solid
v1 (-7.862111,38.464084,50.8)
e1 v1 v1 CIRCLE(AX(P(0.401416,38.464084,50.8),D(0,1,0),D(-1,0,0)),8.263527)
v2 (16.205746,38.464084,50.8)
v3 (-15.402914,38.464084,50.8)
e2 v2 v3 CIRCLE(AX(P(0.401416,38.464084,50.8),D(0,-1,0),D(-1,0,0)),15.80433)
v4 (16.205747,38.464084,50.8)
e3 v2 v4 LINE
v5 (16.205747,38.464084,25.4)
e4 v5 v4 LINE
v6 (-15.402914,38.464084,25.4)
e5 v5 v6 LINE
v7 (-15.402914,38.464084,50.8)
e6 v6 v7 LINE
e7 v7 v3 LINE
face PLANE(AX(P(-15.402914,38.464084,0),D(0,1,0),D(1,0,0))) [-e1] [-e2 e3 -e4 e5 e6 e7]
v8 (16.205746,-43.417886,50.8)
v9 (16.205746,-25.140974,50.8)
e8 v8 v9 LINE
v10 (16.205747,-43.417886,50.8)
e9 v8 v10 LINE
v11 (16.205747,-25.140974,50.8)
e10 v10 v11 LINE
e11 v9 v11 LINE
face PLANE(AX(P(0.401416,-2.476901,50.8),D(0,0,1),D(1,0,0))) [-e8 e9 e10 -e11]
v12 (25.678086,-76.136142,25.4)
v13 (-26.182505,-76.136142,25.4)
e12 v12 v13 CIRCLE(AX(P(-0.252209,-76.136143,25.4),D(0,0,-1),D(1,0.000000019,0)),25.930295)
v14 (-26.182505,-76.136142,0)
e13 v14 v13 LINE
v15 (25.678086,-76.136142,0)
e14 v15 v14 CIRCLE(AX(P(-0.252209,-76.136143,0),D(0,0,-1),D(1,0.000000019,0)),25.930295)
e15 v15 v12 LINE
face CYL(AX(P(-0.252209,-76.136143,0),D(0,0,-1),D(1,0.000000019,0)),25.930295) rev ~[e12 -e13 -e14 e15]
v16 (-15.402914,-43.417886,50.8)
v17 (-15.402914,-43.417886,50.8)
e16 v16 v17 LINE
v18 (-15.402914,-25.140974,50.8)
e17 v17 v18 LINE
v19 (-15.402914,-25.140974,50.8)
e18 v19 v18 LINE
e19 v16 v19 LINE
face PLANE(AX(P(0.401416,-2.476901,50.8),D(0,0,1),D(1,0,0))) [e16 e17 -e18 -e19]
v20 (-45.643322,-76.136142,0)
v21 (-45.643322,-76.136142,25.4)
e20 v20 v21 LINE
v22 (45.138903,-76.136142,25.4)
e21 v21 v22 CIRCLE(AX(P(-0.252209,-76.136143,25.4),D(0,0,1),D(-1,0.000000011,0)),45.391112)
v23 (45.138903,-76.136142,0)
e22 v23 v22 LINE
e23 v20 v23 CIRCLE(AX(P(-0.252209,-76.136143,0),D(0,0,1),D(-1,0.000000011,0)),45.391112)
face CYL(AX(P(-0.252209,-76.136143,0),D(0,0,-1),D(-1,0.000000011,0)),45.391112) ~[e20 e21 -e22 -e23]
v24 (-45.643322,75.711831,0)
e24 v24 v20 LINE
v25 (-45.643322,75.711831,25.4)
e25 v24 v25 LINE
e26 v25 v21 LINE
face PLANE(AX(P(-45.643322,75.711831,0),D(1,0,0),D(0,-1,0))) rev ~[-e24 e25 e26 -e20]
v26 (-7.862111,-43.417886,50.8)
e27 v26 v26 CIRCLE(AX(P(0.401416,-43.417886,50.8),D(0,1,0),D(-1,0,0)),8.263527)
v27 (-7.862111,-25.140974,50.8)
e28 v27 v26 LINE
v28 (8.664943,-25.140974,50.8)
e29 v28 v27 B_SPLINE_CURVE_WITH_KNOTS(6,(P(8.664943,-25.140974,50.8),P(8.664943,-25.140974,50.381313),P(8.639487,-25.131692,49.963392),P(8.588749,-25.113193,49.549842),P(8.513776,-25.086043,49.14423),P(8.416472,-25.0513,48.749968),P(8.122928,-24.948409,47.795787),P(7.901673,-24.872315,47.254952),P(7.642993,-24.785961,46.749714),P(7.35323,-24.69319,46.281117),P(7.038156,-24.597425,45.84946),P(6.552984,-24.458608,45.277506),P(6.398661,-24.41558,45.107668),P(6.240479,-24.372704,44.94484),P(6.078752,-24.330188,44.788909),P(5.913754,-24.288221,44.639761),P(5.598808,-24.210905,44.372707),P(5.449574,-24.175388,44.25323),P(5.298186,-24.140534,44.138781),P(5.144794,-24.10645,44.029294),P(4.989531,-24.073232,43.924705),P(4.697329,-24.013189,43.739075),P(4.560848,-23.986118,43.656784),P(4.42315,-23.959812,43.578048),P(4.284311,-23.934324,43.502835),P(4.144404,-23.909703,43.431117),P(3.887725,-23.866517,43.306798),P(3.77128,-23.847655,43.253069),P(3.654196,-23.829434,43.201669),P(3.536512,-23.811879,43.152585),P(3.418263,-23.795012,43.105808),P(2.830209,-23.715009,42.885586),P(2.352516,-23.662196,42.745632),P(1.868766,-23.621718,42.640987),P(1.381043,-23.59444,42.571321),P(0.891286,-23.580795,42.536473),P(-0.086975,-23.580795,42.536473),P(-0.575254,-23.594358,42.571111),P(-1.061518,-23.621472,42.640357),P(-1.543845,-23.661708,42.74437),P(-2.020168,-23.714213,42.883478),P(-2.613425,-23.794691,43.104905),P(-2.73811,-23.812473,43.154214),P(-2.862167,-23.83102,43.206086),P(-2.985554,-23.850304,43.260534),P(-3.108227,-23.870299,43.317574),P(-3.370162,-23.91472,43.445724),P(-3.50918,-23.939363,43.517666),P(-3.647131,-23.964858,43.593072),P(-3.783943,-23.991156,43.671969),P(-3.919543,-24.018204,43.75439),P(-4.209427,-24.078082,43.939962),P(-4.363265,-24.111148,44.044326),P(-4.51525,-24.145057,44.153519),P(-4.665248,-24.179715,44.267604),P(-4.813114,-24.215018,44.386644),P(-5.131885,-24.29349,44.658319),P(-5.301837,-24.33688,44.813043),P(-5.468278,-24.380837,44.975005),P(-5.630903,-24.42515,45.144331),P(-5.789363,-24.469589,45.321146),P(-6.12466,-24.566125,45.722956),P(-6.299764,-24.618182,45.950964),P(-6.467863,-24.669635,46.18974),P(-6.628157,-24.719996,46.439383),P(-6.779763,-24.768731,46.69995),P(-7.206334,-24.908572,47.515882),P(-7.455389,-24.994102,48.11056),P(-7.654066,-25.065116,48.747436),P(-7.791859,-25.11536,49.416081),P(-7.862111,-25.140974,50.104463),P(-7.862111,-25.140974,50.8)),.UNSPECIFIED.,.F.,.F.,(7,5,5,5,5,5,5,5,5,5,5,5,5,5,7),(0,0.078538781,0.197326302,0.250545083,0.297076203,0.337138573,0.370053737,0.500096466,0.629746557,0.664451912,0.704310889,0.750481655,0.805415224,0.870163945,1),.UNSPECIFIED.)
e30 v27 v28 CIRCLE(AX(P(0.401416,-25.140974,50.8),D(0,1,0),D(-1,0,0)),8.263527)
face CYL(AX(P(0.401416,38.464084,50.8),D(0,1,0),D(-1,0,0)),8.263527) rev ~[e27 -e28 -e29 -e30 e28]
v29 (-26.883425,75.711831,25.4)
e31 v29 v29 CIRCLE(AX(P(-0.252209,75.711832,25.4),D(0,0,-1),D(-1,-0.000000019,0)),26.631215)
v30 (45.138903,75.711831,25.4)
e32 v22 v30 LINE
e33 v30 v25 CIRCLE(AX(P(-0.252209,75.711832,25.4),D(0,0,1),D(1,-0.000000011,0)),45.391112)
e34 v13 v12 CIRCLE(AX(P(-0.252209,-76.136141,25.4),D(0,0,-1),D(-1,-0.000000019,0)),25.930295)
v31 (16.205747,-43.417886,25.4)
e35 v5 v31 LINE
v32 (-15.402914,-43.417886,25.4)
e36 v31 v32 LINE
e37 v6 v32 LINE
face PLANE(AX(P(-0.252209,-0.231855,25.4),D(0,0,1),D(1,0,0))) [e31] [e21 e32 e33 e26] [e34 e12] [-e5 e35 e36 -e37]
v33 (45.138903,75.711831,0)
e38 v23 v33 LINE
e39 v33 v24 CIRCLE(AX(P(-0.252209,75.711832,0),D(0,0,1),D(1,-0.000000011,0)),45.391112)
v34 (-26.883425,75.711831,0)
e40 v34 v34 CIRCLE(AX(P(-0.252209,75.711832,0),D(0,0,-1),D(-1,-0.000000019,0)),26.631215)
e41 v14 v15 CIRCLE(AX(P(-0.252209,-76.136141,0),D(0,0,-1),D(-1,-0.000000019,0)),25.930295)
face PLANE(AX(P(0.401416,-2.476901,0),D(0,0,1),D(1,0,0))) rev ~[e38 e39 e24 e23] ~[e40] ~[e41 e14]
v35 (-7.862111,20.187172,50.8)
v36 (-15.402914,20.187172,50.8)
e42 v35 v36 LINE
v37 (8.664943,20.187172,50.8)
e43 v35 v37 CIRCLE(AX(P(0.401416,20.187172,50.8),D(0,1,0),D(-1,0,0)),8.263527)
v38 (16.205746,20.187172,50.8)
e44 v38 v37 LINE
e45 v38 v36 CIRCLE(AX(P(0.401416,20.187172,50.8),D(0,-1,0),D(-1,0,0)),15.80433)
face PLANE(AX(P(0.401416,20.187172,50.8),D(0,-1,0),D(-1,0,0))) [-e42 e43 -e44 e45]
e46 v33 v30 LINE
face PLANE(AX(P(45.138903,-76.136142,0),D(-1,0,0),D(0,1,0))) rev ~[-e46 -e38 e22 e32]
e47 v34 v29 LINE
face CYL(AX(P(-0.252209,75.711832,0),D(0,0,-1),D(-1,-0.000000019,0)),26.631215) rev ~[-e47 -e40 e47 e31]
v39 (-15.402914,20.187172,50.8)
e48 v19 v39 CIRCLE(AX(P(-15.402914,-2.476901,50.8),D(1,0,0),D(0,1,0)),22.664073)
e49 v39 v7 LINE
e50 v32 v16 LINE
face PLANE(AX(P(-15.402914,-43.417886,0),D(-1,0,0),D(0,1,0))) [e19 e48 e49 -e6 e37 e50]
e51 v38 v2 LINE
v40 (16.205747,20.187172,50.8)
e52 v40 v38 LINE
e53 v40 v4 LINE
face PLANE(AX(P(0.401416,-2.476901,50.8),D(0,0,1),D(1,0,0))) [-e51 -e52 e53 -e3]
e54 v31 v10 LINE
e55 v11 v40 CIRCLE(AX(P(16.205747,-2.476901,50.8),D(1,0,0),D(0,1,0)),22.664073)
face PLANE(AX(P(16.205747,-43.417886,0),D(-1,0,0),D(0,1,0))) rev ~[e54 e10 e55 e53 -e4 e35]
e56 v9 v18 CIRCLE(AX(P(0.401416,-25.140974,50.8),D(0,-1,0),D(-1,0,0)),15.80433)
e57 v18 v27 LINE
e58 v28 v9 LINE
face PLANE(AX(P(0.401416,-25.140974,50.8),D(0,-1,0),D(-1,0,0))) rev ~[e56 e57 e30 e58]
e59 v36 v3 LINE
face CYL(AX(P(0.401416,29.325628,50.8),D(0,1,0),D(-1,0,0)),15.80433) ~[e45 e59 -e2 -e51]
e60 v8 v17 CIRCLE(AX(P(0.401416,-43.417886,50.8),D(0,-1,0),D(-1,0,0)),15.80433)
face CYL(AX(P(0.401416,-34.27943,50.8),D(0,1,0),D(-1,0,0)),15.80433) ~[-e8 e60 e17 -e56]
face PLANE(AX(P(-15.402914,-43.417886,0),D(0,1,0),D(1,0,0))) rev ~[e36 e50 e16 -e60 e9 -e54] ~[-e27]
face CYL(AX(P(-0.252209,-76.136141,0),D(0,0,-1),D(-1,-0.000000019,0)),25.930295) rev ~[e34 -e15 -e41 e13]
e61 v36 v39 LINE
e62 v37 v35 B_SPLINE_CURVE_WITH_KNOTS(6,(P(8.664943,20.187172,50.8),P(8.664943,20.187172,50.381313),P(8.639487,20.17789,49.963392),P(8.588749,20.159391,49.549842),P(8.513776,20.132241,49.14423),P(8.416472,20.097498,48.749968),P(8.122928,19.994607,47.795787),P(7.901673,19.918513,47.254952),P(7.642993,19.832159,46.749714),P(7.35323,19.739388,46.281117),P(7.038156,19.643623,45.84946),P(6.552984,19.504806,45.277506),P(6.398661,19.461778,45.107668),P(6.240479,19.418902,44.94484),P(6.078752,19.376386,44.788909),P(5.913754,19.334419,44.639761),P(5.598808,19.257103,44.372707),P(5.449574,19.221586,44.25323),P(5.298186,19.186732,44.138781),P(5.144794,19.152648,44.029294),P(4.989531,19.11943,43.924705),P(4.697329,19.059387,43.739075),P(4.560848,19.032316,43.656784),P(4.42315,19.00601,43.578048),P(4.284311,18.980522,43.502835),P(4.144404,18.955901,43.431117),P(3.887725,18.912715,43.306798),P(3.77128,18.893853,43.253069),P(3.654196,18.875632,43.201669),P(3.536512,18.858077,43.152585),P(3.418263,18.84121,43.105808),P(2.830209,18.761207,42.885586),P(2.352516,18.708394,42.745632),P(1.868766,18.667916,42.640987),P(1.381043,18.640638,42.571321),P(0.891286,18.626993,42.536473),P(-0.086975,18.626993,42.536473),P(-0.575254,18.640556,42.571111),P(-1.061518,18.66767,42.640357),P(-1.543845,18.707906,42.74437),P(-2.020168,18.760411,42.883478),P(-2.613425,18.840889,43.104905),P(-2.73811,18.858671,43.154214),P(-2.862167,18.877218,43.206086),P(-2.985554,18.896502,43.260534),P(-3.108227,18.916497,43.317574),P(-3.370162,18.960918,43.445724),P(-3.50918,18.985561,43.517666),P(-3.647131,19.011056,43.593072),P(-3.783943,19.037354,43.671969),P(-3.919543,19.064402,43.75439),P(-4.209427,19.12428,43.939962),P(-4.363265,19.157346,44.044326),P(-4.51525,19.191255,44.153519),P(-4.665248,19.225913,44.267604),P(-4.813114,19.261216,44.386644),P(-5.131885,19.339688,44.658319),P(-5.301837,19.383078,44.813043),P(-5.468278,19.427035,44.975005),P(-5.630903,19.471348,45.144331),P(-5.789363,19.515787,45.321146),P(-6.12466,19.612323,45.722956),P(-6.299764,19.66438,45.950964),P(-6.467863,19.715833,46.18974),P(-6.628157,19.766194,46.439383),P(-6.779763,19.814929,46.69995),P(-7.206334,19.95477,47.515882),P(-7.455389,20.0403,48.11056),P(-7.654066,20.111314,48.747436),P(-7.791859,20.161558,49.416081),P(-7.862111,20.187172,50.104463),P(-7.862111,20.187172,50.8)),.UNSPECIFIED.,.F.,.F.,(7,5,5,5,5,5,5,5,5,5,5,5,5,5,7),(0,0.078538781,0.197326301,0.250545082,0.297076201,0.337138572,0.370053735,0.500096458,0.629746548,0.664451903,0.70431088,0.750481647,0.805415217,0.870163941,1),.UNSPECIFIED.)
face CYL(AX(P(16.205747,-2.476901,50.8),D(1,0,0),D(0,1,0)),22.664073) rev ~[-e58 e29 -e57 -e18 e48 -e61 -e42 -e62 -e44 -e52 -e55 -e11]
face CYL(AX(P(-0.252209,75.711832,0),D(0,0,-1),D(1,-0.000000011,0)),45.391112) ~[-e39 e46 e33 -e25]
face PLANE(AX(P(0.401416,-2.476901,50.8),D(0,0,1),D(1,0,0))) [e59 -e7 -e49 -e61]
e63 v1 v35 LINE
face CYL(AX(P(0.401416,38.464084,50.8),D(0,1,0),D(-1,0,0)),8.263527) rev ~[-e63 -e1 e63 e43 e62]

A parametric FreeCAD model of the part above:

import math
import FreeCAD as App
import Part
import Sketcher
Q = App.Units.Quantity

doc = App.newDocument("Part")
params = doc.addObject("Spreadsheet::Sheet", "Params")
for row, (alias, value) in enumerate([
    ("pad1_length", "1 in"),
    ("pad2_length", "2 in"),
    ("pocket1_length", "3 in"),
    ("revolution_angle", "360 deg"),
    ("revolution2_angle", "360 deg"),
    ("pocket2_length", "5.34 in"),
], start=1):
    params.set(f"A{row}", alias)
    params.set(f"B{row}", "=" + value)
    params.setAlias(f"B{row}", alias)

body = doc.addObject("PartDesign::Body", "Body")

# Sketch on XY plane
sketch1 = doc.addObject("Sketcher::SketchObject", "Sketch")
body.addObject(sketch1)
sketch1.AttachmentSupport = (doc.XY_Plane, [""])
sketch1.MapMode = "FlatFace"
sketch1.addGeometry(Part.LineSegment(App.Vector(-46, 76, 0), App.Vector(-46, -76, 0)), False)
sketch1.addGeometry(Part.ArcOfCircle(Part.Circle(App.Vector(0, -76, 0), App.Vector(0, 0, 1), 45), math.radians(180), math.radians(360)), False)
sketch1.addGeometry(Part.LineSegment(App.Vector(45, -76, 0), App.Vector(45, 76, 0)), False)
sketch1.addGeometry(Part.ArcOfCircle(Part.Circle(App.Vector(0, 76, 0), App.Vector(0, 0, 1), 45), math.radians(0), math.radians(180)), False)
sketch1.addGeometry(Part.Circle(App.Vector(0, 76, 0), App.Vector(0, 0, 1), 27), False)
sketch1.addGeometry(Part.ArcOfCircle(Part.Circle(App.Vector(0, -76, 0), App.Vector(0, 0, 1), 26), math.radians(0), math.radians(180)), False)
sketch1.addGeometry(Part.ArcOfCircle(Part.Circle(App.Vector(0, -76, 0), App.Vector(0, 0, 1), 26), math.radians(180), math.radians(360)), False)
sketch1.addConstraint(Sketcher.Constraint("Tangent", 0, 2, 1, 1))
sketch1.addConstraint(Sketcher.Constraint("Tangent", 1, 2, 2, 1))
sketch1.addConstraint(Sketcher.Constraint("Tangent", 2, 2, 3, 1))
sketch1.addConstraint(Sketcher.Constraint("Tangent", 3, 2, 0, 1))
sketch1.addConstraint(Sketcher.Constraint("Tangent", 5, 1, 6, 2))
sketch1.addConstraint(Sketcher.Constraint("Coincident", 6, 1, 5, 2))
sketch1.addConstraint(Sketcher.Constraint("Vertical", 0))
sketch1.addConstraint(Sketcher.Constraint("Vertical", 2))
sketch1.addConstraint(Sketcher.Constraint("Coincident", 4, 3, 3, 3))
sketch1.addConstraint(Sketcher.Constraint("Coincident", 5, 3, 1, 3))
sketch1.addConstraint(Sketcher.Constraint("Horizontal", 1, 2, 5, 1))
sketch1.addConstraint(Sketcher.Constraint("Horizontal", 5, 1, 6, 1))
sketch1.addConstraint(Sketcher.Constraint("Diameter", 4, Q("53.262431 mm")))
sketch1.addConstraint(Sketcher.Constraint("Radius", 1, Q("45.391112 mm")))
sketch1.addConstraint(Sketcher.Constraint("Radius", 5, Q("25.930295 mm")))
sketch1.addConstraint(Sketcher.Constraint("DistanceY", 0, 2, 0, 1, Q("151.847973 mm")))
sketch1.addConstraint(Sketcher.Constraint("DistanceX", 1, 3, -1, 1, Q("0.252209 mm")))
sketch1.addConstraint(Sketcher.Constraint("DistanceY", -1, 1, 3, 3, Q("75.711832 mm")))
pad1 = doc.addObject("PartDesign::Pad", "Pad")
body.addObject(pad1)
pad1.Profile = sketch1
pad1.setExpression("Length", "Params.pad1_length")

# Sketch on XY plane
sketch2 = doc.addObject("Sketcher::SketchObject", "Sketch001")
body.addObject(sketch2)
sketch2.AttachmentSupport = (doc.XY_Plane, [""])
sketch2.MapMode = "FlatFace"
sketch2.addGeometry(Part.LineSegment(App.Vector(-15, 38, 0), App.Vector(-15, -43, 0)), False)
sketch2.addGeometry(Part.LineSegment(App.Vector(-15, -43, 0), App.Vector(16, -43, 0)), False)
sketch2.addGeometry(Part.LineSegment(App.Vector(16, -43, 0), App.Vector(16, 38, 0)), False)
sketch2.addGeometry(Part.LineSegment(App.Vector(16, 38, 0), App.Vector(-15, 38, 0)), False)
sketch2.addConstraint(Sketcher.Constraint("Coincident", 0, 2, 1, 1))
sketch2.addConstraint(Sketcher.Constraint("Coincident", 1, 2, 2, 1))
sketch2.addConstraint(Sketcher.Constraint("Coincident", 2, 2, 3, 1))
sketch2.addConstraint(Sketcher.Constraint("Coincident", 3, 2, 0, 1))
sketch2.addConstraint(Sketcher.Constraint("Vertical", 0))
sketch2.addConstraint(Sketcher.Constraint("Horizontal", 1))
sketch2.addConstraint(Sketcher.Constraint("Vertical", 2))
sketch2.addConstraint(Sketcher.Constraint("Horizontal", 3))
sketch2.addConstraint(Sketcher.Constraint("DistanceX", 1, 1, 1, 2, Q("31.608661 mm")))
sketch2.addConstraint(Sketcher.Constraint("DistanceY", 0, 2, 0, 1, Q("81.88197 mm")))
sketch2.addConstraint(Sketcher.Constraint("DistanceX", 0, 2, -1, 1, Q("15.402914 mm")))
sketch2.addConstraint(Sketcher.Constraint("DistanceY", 0, 2, -1, 1, Q("43.417886 mm")))
pad2 = doc.addObject("PartDesign::Pad", "Pad001")
body.addObject(pad2)
pad2.Profile = sketch2
pad2.setExpression("Length", "Params.pad2_length")

# Sketch on YZ plane
sketch3 = doc.addObject("Sketcher::SketchObject", "Sketch002")
body.addObject(sketch3)
sketch3.AttachmentSupport = (doc.YZ_Plane, [""])
sketch3.MapMode = "FlatFace"
sketch3.AttachmentOffset = App.Placement(App.Vector(0, 0, 16.205747), App.Rotation())
sketch3.addGeometry(Part.Circle(App.Vector(-2, 51, 0), App.Vector(0, 0, 1), 23), False)
sketch3.addConstraint(Sketcher.Constraint("DistanceY", -1, 1, 0, 3, Q("2 in")))
sketch3.addConstraint(Sketcher.Constraint("Diameter", 0, Q("45.328146 mm")))
sketch3.addConstraint(Sketcher.Constraint("DistanceX", 0, 3, -1, 1, Q("2.476901 mm")))
pocket1 = doc.addObject("PartDesign::Pocket", "Pocket")
body.addObject(pocket1)
pocket1.Profile = sketch3
pocket1.setExpression("Length", "Params.pocket1_length")

# Sketch on XY plane
sketch4 = doc.addObject("Sketcher::SketchObject", "Sketch003")
body.addObject(sketch4)
sketch4.AttachmentSupport = (doc.XY_Plane, [""])
sketch4.MapMode = "FlatFace"
sketch4.AttachmentOffset = App.Placement(App.Vector(0, 0, 2 * 25.4), App.Rotation())
sketch4.addGeometry(Part.LineSegment(App.Vector(-15, -25, 0), App.Vector(-15, -43, 0)), False)
sketch4.addGeometry(Part.LineSegment(App.Vector(-15, -43, 0), App.Vector(0, -43, 0)), False)
sketch4.addGeometry(Part.LineSegment(App.Vector(0, -43, 0), App.Vector(0, -25, 0)), False)
sketch4.addGeometry(Part.LineSegment(App.Vector(0, -25, 0), App.Vector(-15, -25, 0)), False)
sketch4.addGeometry(Part.LineSegment(App.Vector(0, -25, 0), App.Vector(0, -43, 0)), True)  # axis
sketch4.addConstraint(Sketcher.Constraint("Coincident", 0, 2, 1, 1))
sketch4.addConstraint(Sketcher.Constraint("Coincident", 1, 2, 2, 1))
sketch4.addConstraint(Sketcher.Constraint("Coincident", 2, 2, 3, 1))
sketch4.addConstraint(Sketcher.Constraint("Coincident", 3, 2, 0, 1))
sketch4.addConstraint(Sketcher.Constraint("Vertical", 0))
sketch4.addConstraint(Sketcher.Constraint("Horizontal", 1))
sketch4.addConstraint(Sketcher.Constraint("Vertical", 2))
sketch4.addConstraint(Sketcher.Constraint("Horizontal", 3))
sketch4.addConstraint(Sketcher.Constraint("Vertical", 4))
sketch4.addConstraint(Sketcher.Constraint("Coincident", 4, 1, 2, 2))
sketch4.addConstraint(Sketcher.Constraint("Horizontal", 0, 2, 4, 2))
sketch4.addConstraint(Sketcher.Constraint("DistanceX", 1, 1, 1, 2, Q("15.80433 mm")))
sketch4.addConstraint(Sketcher.Constraint("DistanceY", 0, 2, 0, 1, Q("18.276912 mm")))
sketch4.addConstraint(Sketcher.Constraint("DistanceX", 0, 2, -1, 1, Q("15.402914 mm")))
sketch4.addConstraint(Sketcher.Constraint("DistanceY", 0, 2, -1, 1, Q("43.417886 mm")))
revolution = doc.addObject("PartDesign::Revolution", "Revolution")
body.addObject(revolution)
revolution.Profile = sketch4
revolution.ReferenceAxis = (sketch4, ["Axis0"])
revolution.setExpression("Angle", "Params.revolution_angle")

# Sketch on XY plane
sketch5 = doc.addObject("Sketcher::SketchObject", "Sketch004")
body.addObject(sketch5)
sketch5.AttachmentSupport = (doc.XY_Plane, [""])
sketch5.MapMode = "FlatFace"
sketch5.AttachmentOffset = App.Placement(App.Vector(0, 0, 2 * 25.4), App.Rotation())
sketch5.addGeometry(Part.LineSegment(App.Vector(-15, 38, 0), App.Vector(-15, 20, 0)), False)
sketch5.addGeometry(Part.LineSegment(App.Vector(-15, 20, 0), App.Vector(0, 20, 0)), False)
sketch5.addGeometry(Part.LineSegment(App.Vector(0, 20, 0), App.Vector(0, 38, 0)), False)
sketch5.addGeometry(Part.LineSegment(App.Vector(0, 38, 0), App.Vector(-15, 38, 0)), False)
sketch5.addGeometry(Part.LineSegment(App.Vector(0, 38, 0), App.Vector(0, 20, 0)), True)  # axis
sketch5.addConstraint(Sketcher.Constraint("Coincident", 0, 2, 1, 1))
sketch5.addConstraint(Sketcher.Constraint("Coincident", 1, 2, 2, 1))
sketch5.addConstraint(Sketcher.Constraint("Coincident", 2, 2, 3, 1))
sketch5.addConstraint(Sketcher.Constraint("Coincident", 3, 2, 0, 1))
sketch5.addConstraint(Sketcher.Constraint("Vertical", 0))
sketch5.addConstraint(Sketcher.Constraint("Horizontal", 1))
sketch5.addConstraint(Sketcher.Constraint("Vertical", 2))
sketch5.addConstraint(Sketcher.Constraint("Horizontal", 3))
sketch5.addConstraint(Sketcher.Constraint("Vertical", 4))
sketch5.addConstraint(Sketcher.Constraint("Coincident", 4, 1, 2, 2))
sketch5.addConstraint(Sketcher.Constraint("Horizontal", 0, 2, 4, 2))
sketch5.addConstraint(Sketcher.Constraint("DistanceX", 1, 1, 1, 2, Q("15.80433 mm")))
sketch5.addConstraint(Sketcher.Constraint("DistanceY", 0, 2, 0, 1, Q("18.276912 mm")))
sketch5.addConstraint(Sketcher.Constraint("DistanceX", 0, 2, -1, 1, Q("15.402914 mm")))
sketch5.addConstraint(Sketcher.Constraint("DistanceY", -1, 1, 0, 2, Q("20.187172 mm")))
revolution2 = doc.addObject("PartDesign::Revolution", "Revolution001")
body.addObject(revolution2)
revolution2.Profile = sketch5
revolution2.ReferenceAxis = (sketch5, ["Axis0"])
revolution2.setExpression("Angle", "Params.revolution2_angle")

# Sketch on XZ plane
sketch6 = doc.addObject("Sketcher::SketchObject", "Sketch005")
body.addObject(sketch6)
sketch6.AttachmentSupport = (doc.XZ_Plane, [""])
sketch6.MapMode = "FlatFace"
sketch6.AttachmentOffset = App.Placement(App.Vector(0, 0, -38.464084), App.Rotation())
sketch6.addGeometry(Part.Circle(App.Vector(0, 51, 0), App.Vector(0, 0, 1), 8), False)
sketch6.addConstraint(Sketcher.Constraint("DistanceY", -1, 1, 0, 3, Q("2 in")))
sketch6.addConstraint(Sketcher.Constraint("Diameter", 0, Q("16.527054 mm")))
sketch6.addConstraint(Sketcher.Constraint("DistanceX", -1, 1, 0, 3, Q("0.401416 mm")))
pocket2 = doc.addObject("PartDesign::Pocket", "Pocket001")
body.addObject(pocket2)
pocket2.Profile = sketch6
pocket2.setExpression("Length", "Params.pocket2_length")
pocket2.Reversed = True

doc.recompute()
